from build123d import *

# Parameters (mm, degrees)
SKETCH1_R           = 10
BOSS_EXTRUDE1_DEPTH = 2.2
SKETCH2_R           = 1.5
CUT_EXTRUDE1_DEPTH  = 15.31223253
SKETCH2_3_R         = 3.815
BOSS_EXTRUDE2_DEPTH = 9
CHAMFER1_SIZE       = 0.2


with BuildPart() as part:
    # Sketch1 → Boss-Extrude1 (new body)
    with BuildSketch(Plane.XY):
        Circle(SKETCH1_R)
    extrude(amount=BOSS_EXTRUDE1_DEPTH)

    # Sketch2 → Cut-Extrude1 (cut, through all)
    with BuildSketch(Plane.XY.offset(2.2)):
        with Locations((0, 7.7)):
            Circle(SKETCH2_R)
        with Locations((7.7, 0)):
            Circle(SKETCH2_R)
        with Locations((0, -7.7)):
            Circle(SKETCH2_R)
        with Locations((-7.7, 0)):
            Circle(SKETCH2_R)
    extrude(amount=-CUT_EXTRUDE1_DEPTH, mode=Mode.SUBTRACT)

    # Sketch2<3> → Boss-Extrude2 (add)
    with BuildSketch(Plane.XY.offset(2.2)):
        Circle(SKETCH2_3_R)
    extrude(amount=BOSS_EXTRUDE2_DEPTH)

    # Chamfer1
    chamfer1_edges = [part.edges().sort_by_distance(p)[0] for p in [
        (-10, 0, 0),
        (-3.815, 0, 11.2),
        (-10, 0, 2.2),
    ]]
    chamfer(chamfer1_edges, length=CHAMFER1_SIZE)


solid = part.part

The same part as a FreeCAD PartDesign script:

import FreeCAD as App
import Part
import Sketcher
from FreeCAD import Vector
Q = App.Units.Quantity


def edges_at(feature, points):
    """Names of the edges that pass closest to the given points."""
    edges = feature.Shape.Edges
    near = lambda p: min(range(len(edges)), key=lambda i: edges[i].distToShape(Part.Vertex(*p))[0])
    return sorted({f"Edge{near(p) + 1}" for p in points})

doc = App.newDocument("Part")
body = doc.addObject("PartDesign::Body", "Body")

# Sketch on XY plane
sketch1 = doc.addObject("Sketcher::SketchObject", "Sketch")
body.addObject(sketch1)
sketch1.AttachmentSupport = (doc.XY_Plane, [""])
sketch1.MapMode = "FlatFace"
sketch1.addGeometry(Part.Circle(Vector(0, 0, 0), Vector(0, 0, 1), 10), False)
sketch1.addConstraint(Sketcher.Constraint("Coincident", 0, 3, -1, 1))
sketch1.addConstraint(Sketcher.Constraint("Diameter", 0, Q("20 mm")))
pad1 = doc.addObject("PartDesign::Pad", "Pad")
body.addObject(pad1)
pad1.Profile = sketch1
pad1.Length = 2.2

# Sketch on XY plane
sketch2 = doc.addObject("Sketcher::SketchObject", "Sketch001")
body.addObject(sketch2)
sketch2.AttachmentSupport = (doc.XY_Plane, [""])
sketch2.MapMode = "FlatFace"
sketch2.AttachmentOffset = App.Placement(Vector(0, 0, 2.2), App.Rotation())
sketch2.addGeometry(Part.Circle(Vector(0, 7.7, 0), Vector(0, 0, 1), 1.5), False)
sketch2.addGeometry(Part.Circle(Vector(7.7, 0, 0), Vector(0, 0, 1), 1.5), False)
sketch2.addGeometry(Part.Circle(Vector(0, -7.7, 0), Vector(0, 0, 1), 1.5), False)
sketch2.addGeometry(Part.Circle(Vector(-7.7, 0, 0), Vector(0, 0, 1), 1.5), False)
sketch2.addConstraint(Sketcher.Constraint("Equal", 0, 1))
sketch2.addConstraint(Sketcher.Constraint("Equal", 1, 2))
sketch2.addConstraint(Sketcher.Constraint("Equal", 2, 3))
sketch2.addConstraint(Sketcher.Constraint("Symmetric", 0, 3, 2, 3, -1, 1))
sketch2.addConstraint(Sketcher.Constraint("Symmetric", 1, 3, 3, 3, -1, 1))
sketch2.addConstraint(Sketcher.Constraint("PointOnObject", 0, 3, -2))
sketch2.addConstraint(Sketcher.Constraint("PointOnObject", 1, 3, -1))
sketch2.addConstraint(Sketcher.Constraint("Diameter", 0, Q("3 mm")))
sketch2.addConstraint(Sketcher.Constraint("DistanceY", -1, 1, 0, 3, Q("7.7 mm")))
sketch2.addConstraint(Sketcher.Constraint("DistanceX", -1, 1, 1, 3, Q("7.7 mm")))
pocket1 = doc.addObject("PartDesign::Pocket", "Pocket")
body.addObject(pocket1)
pocket1.Profile = sketch2
pocket1.Type = "ThroughAll"

# Sketch on XY plane
sketch3 = doc.addObject("Sketcher::SketchObject", "Sketch002")
body.addObject(sketch3)
sketch3.AttachmentSupport = (doc.XY_Plane, [""])
sketch3.MapMode = "FlatFace"
sketch3.AttachmentOffset = App.Placement(Vector(0, 0, 2.2), App.Rotation())
sketch3.addGeometry(Part.Circle(Vector(0, 0, 0), Vector(0, 0, 1), 3.8), False)
sketch3.addConstraint(Sketcher.Constraint("Coincident", 0, 3, -1, 1))
sketch3.addConstraint(Sketcher.Constraint("Diameter", 0, Q("7.63 mm")))
pad2 = doc.addObject("PartDesign::Pad", "Pad001")
body.addObject(pad2)
pad2.Profile = sketch3
pad2.Length = 9
doc.recompute()

chamfer = doc.addObject("PartDesign::Chamfer", "Chamfer")
body.addObject(chamfer)
chamfer.Base = (pad2, edges_at(pad2, [(-10, 0, 0), (-3.815, 0, 11.2), (-10, 0, 2.2)]))
chamfer.Size = 0.2

doc.recompute()
